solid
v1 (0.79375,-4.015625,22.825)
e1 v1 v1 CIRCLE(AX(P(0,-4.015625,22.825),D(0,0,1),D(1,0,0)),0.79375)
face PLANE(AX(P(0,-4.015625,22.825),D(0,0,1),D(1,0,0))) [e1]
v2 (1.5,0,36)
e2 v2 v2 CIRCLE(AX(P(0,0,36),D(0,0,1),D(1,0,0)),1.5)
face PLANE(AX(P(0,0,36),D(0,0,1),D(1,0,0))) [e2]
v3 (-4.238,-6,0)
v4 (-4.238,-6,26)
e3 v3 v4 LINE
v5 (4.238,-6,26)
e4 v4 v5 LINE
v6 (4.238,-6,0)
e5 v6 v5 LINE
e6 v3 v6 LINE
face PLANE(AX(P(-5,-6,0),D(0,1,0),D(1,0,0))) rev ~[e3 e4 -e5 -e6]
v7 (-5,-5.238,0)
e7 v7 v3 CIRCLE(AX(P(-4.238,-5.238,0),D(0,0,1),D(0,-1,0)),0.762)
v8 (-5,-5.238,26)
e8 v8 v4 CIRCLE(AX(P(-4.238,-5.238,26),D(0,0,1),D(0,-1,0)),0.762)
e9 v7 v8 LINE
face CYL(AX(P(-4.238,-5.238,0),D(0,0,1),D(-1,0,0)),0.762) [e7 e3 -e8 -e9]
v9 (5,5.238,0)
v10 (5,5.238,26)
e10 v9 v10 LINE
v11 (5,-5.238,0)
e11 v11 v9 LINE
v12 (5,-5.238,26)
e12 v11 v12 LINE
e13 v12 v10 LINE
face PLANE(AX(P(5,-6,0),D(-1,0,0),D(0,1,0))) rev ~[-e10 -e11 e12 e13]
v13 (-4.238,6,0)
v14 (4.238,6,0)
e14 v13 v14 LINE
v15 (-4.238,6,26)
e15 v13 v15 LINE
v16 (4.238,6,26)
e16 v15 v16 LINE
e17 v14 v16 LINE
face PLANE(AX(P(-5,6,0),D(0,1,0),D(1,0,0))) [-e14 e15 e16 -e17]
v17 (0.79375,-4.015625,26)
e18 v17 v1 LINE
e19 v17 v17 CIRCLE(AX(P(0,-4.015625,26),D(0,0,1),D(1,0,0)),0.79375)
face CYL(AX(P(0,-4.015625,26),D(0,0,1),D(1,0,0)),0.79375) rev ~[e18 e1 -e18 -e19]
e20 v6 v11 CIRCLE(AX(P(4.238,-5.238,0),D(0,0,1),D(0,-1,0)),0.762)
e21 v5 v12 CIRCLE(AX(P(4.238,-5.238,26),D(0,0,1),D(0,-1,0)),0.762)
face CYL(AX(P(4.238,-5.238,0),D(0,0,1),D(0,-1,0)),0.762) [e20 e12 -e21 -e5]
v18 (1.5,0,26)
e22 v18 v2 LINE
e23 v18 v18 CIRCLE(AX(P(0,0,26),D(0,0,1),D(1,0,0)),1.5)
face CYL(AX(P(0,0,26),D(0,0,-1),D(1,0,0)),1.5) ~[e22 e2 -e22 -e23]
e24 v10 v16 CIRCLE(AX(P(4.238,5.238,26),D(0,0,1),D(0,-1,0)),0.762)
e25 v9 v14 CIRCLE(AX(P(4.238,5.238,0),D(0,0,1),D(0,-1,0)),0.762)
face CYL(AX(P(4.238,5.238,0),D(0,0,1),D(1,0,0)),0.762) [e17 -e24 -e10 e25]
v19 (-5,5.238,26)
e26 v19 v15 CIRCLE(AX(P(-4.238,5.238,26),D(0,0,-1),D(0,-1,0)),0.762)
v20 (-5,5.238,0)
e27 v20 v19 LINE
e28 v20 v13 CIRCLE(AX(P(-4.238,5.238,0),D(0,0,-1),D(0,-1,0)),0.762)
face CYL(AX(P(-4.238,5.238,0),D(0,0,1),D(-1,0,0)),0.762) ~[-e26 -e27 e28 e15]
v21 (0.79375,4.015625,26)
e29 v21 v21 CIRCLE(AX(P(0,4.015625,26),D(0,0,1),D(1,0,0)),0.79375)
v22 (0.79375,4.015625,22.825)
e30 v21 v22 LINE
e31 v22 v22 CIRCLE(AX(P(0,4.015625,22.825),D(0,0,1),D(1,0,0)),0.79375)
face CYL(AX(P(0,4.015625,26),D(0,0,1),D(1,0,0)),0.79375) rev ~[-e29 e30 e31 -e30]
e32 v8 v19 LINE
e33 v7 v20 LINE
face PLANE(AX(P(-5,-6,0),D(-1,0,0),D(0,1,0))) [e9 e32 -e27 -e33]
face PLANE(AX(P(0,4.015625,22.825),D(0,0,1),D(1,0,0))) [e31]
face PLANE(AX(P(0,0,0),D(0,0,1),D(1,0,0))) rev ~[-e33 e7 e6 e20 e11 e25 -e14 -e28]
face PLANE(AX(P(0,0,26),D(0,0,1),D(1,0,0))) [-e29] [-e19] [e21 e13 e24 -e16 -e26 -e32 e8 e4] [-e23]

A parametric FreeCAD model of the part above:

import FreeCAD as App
import Part
import Sketcher

V = App.Vector
Q = App.Units.Quantity


def edges_at(feature, points):
    """Names of the edges that pass closest to the given points."""
    edges = feature.Shape.Edges
    near = lambda p: min(range(len(edges)), key=lambda i: edges[i].distToShape(Part.Vertex(*p))[0])
    return sorted({f"Edge{near(p) + 1}" for p in points})

doc = App.newDocument("Part")
params = doc.addObject("Spreadsheet::Sheet", "Params")
for row, (alias, value) in enumerate([
    ("sketch1_width", "10 mm"),
    ("sketch1_height", "12 mm"),
    ("pad1_length", "26 mm"),
    ("fillet_radius", "0.762 mm"),
    ("sketch2_diameter", "3 mm"),
    ("pad2_length", "10 mm"),
    ("pocket1_length", "3.175 mm"),
], start=1):
    params.set(f"A{row}", alias)
    params.set(f"B{row}", "=" + value)
    params.setAlias(f"B{row}", alias)

body = doc.addObject("PartDesign::Body", "Body")

# Sketch on XY plane
sketch1 = body.newObject("Sketcher::SketchObject", "Sketch")
sketch1.AttachmentSupport = (doc.getObject("XY_Plane"), [""])
sketch1.MapMode = "FlatFace"
sketch1.addGeometry(Part.LineSegment(V(-5, 6, 0), V(-5, -6, 0)), False)
sketch1.addGeometry(Part.LineSegment(V(-5, -6, 0), V(5, -6, 0)), False)
sketch1.addGeometry(Part.LineSegment(V(5, -6, 0), V(5, 6, 0)), False)
sketch1.addGeometry(Part.LineSegment(V(5, 6, 0), V(-5, 6, 0)), False)
sketch1.addConstraint(Sketcher.Constraint("Coincident", 0, 2, 1, 1))
sketch1.addConstraint(Sketcher.Constraint("Coincident", 1, 2, 2, 1))
sketch1.addConstraint(Sketcher.Constraint("Coincident", 2, 2, 3, 1))
sketch1.addConstraint(Sketcher.Constraint("Coincident", 3, 2, 0, 1))
sketch1.addConstraint(Sketcher.Constraint("Vertical", 0))
sketch1.addConstraint(Sketcher.Constraint("Horizontal", 1))
sketch1.addConstraint(Sketcher.Constraint("Vertical", 2))
sketch1.addConstraint(Sketcher.Constraint("Horizontal", 3))
sketch1.addConstraint(Sketcher.Constraint("Symmetric", 0, 2, 2, 2, -1, 1))
sketch1.addConstraint(Sketcher.Constraint("DistanceX", 1, 1, 1, 2, Q("10 mm")))
sketch1.addConstraint(Sketcher.Constraint("DistanceY", 0, 2, 0, 1, Q("12 mm")))
sketch1.setExpression("Constraints[9]", "Params.sketch1_width")
sketch1.setExpression("Constraints[10]", "Params.sketch1_height")
pad1 = body.newObject("PartDesign::Pad", "Pad")
pad1.Profile = sketch1
pad1.setExpression("Length", "Params.pad1_length")
doc.recompute()

fillet = body.newObject("PartDesign::Fillet", "Fillet")
fillet.Base = (pad1, edges_at(pad1, [
    (-5, -6, 13),
    (-5, 6, 13),
    (5, -6, 13),
    (5, 6, 13),
]))
fillet.setExpression("Radius", "Params.fillet_radius")

# Sketch on XY plane
sketch2 = body.newObject("Sketcher::SketchObject", "Sketch001")
sketch2.AttachmentSupport = (doc.getObject("XY_Plane"), [""])
sketch2.MapMode = "FlatFace"
sketch2.AttachmentOffset = App.Placement(V(0, 0, 26), App.Rotation())
sketch2.addGeometry(Part.Circle(V(0, 0, 0), V(0, 0, 1), 1.5), False)
sketch2.addConstraint(Sketcher.Constraint("Coincident", 0, 3, -1, 1))
sketch2.addConstraint(Sketcher.Constraint("Diameter", 0, Q("3 mm")))
sketch2.setExpression("Constraints[1]", "Params.sketch2_diameter")
pad2 = body.newObject("PartDesign::Pad", "Pad001")
pad2.Profile = sketch2
pad2.setExpression("Length", "Params.pad2_length")

# Sketch on XY plane
sketch3 = body.newObject("Sketcher::SketchObject", "Sketch002")
sketch3.AttachmentSupport = (doc.getObject("XY_Plane"), [""])
sketch3.MapMode = "FlatFace"
sketch3.AttachmentOffset = App.Placement(V(0, 0, 26), App.Rotation())
sketch3.addGeometry(Part.Circle(V(0, 4, 0), V(0, 0, 1), 0.8), False)
sketch3.addGeometry(Part.Circle(V(0, -4, 0), V(0, 0, 1), 0.8), False)
sketch3.addConstraint(Sketcher.Constraint("Equal", 0, 1))
sketch3.addConstraint(Sketcher.Constraint("Symmetric", 0, 3, 1, 3, -1, 1))
sketch3.addConstraint(Sketcher.Constraint("PointOnObject", 0, 3, -2))
sketch3.addConstraint(Sketcher.Constraint("Diameter", 0, Q("1.5875 mm")))
sketch3.addConstraint(Sketcher.Constraint("DistanceY", 1, 3, 0, 3, Q("8.03125 mm")))
pocket1 = body.newObject("PartDesign::Pocket", "Pocket")
pocket1.Profile = sketch3
pocket1.setExpression("Length", "Params.pocket1_length")

doc.recompute()
